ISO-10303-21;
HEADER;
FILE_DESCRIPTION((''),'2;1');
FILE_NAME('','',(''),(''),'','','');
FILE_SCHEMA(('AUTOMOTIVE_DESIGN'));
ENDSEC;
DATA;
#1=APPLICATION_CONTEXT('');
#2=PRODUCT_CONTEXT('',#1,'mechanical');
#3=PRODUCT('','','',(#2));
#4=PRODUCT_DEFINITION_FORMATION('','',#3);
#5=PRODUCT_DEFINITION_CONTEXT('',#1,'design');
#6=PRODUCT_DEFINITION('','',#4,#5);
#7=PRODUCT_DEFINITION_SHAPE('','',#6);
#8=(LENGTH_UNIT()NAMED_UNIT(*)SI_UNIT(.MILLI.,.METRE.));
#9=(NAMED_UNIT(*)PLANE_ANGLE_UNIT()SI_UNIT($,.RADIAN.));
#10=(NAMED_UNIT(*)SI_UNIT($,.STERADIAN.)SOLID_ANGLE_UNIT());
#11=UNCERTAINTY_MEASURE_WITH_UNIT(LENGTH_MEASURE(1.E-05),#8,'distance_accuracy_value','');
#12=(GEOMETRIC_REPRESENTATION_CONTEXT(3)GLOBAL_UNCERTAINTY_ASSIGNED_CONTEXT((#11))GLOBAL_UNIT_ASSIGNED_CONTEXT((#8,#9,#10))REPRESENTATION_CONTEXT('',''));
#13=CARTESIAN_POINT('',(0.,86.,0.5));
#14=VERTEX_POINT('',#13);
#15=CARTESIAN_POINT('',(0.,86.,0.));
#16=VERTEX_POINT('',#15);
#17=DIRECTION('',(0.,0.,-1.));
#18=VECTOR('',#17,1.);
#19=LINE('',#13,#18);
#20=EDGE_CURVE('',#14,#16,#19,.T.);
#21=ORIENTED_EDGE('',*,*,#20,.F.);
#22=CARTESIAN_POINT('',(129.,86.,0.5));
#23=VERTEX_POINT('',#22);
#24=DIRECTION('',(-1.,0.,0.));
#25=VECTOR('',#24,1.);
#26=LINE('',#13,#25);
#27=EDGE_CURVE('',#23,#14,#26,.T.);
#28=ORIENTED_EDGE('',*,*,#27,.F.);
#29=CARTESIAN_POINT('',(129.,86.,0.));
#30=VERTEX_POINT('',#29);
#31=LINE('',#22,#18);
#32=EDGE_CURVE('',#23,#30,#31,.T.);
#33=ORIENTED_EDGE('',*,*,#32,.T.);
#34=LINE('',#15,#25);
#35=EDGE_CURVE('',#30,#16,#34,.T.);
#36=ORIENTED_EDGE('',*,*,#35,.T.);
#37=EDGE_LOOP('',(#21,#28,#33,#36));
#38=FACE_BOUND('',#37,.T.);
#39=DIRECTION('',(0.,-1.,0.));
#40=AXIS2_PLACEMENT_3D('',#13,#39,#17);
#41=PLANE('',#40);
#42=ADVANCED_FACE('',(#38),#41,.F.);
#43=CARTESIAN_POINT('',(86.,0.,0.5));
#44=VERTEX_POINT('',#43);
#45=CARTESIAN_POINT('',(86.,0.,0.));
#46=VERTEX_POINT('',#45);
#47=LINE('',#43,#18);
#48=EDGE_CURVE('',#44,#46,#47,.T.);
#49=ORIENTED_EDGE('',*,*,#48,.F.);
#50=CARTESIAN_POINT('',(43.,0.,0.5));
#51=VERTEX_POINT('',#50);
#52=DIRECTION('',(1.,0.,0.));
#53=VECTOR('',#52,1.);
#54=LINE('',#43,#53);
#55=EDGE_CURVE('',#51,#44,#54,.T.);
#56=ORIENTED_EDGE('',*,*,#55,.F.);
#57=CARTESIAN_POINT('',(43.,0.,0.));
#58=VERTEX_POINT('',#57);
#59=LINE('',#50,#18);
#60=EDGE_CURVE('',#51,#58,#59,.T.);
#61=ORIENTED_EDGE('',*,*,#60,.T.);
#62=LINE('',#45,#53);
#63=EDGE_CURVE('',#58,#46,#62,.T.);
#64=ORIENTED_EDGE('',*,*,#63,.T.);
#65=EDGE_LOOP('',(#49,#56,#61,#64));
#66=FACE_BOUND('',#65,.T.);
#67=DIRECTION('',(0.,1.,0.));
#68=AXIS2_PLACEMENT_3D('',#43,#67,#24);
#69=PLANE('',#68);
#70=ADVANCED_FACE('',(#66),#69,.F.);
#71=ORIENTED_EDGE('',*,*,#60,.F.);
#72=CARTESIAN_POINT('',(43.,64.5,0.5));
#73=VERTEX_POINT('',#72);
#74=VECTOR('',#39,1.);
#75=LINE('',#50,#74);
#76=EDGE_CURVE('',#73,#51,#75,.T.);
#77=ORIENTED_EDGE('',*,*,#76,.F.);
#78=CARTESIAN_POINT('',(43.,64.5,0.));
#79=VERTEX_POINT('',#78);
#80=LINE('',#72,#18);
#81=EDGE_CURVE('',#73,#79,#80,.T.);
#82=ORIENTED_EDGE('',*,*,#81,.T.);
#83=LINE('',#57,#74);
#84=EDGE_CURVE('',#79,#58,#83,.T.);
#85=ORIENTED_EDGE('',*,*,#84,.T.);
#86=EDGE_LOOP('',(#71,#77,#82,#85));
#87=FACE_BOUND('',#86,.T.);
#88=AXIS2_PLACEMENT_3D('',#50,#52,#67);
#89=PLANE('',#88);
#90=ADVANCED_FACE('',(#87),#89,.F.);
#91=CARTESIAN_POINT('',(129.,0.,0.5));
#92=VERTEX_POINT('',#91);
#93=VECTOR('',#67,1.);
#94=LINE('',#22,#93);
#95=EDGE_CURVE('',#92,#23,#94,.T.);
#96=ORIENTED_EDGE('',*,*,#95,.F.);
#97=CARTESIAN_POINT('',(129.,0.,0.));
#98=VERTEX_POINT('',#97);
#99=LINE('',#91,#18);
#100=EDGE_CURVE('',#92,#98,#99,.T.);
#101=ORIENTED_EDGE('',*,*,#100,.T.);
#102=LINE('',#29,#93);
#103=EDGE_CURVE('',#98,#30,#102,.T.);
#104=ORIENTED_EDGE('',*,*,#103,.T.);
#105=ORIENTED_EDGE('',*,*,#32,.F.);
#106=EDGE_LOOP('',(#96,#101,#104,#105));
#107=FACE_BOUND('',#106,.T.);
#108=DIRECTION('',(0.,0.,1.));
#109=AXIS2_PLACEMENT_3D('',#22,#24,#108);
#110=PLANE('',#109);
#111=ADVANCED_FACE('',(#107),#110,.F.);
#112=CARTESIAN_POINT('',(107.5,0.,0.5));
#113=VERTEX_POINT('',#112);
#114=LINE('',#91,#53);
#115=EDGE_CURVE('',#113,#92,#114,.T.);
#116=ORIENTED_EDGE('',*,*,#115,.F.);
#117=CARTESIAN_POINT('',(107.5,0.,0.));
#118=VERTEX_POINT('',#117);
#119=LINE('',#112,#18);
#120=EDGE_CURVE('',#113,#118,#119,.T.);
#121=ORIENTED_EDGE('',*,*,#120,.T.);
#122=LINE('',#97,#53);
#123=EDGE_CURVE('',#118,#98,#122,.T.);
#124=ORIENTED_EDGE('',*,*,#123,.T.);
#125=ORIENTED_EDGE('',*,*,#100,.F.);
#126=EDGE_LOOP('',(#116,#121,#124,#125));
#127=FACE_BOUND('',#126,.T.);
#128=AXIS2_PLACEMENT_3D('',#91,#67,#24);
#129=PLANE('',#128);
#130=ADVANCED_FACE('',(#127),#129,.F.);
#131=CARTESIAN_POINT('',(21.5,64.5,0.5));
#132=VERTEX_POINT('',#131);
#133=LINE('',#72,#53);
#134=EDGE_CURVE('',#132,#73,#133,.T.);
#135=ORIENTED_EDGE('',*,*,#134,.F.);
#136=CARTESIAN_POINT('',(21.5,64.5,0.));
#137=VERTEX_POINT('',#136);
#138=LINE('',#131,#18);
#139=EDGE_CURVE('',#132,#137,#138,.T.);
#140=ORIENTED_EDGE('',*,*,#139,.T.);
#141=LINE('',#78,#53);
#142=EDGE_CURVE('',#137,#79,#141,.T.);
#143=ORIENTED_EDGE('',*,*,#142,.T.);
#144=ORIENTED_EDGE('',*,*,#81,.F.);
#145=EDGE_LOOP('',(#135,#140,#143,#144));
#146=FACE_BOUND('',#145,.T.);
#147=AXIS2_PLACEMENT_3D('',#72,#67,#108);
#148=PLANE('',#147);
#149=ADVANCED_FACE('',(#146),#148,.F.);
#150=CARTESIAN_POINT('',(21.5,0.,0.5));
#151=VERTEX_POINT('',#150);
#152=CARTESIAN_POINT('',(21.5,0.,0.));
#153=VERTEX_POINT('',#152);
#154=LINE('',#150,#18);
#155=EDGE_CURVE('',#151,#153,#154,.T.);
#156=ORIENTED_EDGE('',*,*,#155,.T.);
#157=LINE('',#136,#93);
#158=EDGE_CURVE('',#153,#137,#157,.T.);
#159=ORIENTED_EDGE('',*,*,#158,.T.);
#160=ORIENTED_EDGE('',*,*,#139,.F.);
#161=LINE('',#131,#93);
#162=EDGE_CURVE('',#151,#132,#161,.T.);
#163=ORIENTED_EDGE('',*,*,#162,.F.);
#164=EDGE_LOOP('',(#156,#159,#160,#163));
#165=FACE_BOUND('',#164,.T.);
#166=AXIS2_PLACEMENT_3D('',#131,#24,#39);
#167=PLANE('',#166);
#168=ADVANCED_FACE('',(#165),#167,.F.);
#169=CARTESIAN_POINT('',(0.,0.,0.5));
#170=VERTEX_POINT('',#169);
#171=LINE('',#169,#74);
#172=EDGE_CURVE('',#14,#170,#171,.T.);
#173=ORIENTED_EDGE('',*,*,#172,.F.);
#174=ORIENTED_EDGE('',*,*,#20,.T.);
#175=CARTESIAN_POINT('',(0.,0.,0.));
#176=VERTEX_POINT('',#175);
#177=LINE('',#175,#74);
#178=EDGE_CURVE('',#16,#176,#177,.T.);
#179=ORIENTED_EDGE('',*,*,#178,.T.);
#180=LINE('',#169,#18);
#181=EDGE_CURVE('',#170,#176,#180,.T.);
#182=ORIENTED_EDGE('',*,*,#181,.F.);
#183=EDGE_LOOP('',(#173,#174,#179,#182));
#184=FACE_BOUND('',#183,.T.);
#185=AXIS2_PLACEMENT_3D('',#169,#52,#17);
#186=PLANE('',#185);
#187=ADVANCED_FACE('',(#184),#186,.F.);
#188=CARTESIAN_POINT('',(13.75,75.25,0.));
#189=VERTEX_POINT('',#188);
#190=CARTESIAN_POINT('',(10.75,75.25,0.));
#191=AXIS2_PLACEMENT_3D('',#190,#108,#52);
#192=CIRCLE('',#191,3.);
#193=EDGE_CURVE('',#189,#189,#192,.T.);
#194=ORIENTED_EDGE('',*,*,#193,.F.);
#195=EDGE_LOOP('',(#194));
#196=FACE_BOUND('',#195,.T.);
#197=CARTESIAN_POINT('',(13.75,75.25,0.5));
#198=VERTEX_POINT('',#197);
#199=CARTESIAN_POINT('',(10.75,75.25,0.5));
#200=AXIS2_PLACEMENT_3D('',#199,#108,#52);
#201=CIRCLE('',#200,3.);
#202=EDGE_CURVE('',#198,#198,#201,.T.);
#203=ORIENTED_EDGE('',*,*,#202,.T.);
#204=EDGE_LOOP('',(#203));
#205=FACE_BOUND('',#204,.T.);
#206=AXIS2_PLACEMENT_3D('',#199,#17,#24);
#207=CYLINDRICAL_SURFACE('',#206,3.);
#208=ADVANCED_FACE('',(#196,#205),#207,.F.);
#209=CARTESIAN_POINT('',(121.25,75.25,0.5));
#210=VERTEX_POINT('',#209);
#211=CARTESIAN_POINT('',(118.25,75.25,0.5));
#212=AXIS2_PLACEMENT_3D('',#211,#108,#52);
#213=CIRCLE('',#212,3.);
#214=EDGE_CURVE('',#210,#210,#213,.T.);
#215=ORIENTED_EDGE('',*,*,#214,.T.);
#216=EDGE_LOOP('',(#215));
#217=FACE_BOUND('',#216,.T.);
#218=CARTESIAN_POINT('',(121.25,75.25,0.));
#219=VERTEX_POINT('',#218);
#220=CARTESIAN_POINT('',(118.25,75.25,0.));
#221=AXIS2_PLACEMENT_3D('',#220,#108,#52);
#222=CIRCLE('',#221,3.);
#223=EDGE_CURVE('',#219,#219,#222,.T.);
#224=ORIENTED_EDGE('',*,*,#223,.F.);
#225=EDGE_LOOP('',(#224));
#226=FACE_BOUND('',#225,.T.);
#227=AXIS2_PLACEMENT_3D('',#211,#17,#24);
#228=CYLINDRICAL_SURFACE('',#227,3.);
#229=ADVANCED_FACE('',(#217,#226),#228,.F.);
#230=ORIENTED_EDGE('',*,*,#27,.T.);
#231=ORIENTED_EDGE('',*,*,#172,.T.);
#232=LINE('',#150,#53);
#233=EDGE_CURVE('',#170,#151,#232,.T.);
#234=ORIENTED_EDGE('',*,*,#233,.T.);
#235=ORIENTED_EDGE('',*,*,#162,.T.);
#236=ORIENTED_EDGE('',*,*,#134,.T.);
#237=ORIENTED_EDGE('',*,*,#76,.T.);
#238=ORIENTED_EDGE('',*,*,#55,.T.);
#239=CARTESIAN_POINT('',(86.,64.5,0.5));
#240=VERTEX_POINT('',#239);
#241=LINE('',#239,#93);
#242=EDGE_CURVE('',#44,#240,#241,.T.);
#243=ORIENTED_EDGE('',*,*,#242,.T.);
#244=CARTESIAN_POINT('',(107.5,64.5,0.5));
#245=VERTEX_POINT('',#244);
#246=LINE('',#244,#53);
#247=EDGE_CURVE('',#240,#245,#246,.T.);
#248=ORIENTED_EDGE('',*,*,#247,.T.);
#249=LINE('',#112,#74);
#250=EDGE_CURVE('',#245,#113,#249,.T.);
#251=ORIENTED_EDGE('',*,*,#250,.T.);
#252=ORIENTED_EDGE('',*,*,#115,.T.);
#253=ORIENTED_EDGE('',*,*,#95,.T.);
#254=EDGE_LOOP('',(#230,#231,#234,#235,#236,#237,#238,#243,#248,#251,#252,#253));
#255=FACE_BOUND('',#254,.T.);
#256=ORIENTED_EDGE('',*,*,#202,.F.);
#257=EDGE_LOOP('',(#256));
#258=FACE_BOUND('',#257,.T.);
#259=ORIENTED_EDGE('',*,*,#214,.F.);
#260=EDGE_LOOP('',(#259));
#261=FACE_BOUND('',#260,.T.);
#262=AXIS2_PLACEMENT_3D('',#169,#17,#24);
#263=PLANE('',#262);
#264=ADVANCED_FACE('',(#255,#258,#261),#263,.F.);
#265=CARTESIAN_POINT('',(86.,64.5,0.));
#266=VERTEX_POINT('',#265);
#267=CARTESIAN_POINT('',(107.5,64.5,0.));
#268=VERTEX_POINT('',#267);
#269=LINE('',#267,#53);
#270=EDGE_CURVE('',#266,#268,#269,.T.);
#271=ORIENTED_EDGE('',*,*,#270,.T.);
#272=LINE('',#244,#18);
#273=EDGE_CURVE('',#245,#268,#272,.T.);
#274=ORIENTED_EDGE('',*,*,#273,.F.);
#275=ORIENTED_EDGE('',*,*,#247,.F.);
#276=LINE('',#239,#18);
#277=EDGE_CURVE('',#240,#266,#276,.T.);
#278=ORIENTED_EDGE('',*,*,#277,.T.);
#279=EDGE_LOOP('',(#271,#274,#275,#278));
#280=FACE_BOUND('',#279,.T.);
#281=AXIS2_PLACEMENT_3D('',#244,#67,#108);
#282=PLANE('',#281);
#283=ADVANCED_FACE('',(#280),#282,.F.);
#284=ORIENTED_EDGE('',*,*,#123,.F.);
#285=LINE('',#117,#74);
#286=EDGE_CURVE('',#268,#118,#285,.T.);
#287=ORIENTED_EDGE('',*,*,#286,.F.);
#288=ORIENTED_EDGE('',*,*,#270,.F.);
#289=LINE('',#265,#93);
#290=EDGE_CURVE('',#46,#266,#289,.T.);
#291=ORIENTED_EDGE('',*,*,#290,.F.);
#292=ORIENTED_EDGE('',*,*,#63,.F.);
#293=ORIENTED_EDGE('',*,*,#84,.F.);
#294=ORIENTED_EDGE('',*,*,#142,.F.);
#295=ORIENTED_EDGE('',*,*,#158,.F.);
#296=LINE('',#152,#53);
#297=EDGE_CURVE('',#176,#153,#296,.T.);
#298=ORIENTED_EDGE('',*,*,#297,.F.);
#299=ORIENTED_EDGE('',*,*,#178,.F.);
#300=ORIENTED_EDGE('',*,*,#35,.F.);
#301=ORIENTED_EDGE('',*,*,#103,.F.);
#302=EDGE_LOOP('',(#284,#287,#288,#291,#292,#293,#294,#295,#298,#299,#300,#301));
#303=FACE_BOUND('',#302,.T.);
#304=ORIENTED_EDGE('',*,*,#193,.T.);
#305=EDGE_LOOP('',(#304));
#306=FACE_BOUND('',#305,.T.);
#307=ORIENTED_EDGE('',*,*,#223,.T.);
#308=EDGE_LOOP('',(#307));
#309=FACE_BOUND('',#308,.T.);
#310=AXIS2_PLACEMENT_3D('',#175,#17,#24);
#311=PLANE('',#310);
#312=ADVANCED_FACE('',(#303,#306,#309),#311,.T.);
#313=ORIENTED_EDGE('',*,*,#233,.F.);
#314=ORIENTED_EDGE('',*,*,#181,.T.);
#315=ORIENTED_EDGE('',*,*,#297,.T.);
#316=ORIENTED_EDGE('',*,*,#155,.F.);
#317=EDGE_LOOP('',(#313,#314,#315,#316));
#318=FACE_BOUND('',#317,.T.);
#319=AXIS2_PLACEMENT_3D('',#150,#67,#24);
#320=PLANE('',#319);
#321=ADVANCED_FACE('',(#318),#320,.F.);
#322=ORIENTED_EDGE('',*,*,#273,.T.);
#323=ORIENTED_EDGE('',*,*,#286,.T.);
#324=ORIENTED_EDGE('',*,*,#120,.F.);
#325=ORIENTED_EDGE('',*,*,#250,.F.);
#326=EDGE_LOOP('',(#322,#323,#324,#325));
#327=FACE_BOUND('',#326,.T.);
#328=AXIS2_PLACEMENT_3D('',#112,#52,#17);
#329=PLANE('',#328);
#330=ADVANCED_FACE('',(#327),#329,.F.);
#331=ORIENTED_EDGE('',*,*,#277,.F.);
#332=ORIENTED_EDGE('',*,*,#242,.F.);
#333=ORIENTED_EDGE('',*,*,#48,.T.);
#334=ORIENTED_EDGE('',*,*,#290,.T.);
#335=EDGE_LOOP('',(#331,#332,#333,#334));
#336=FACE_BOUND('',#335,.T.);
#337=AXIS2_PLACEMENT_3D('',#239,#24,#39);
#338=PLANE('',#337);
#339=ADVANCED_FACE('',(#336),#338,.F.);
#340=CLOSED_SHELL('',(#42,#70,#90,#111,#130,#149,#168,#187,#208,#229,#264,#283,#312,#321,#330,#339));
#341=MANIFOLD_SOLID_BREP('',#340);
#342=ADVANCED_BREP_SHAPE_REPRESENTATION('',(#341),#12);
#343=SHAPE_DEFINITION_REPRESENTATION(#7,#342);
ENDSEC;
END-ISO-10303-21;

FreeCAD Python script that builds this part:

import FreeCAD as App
import Part
import Sketcher

V = App.Vector

doc = App.newDocument("Part")
params = doc.addObject("Spreadsheet::Sheet", "Params")
for row, (alias, value) in enumerate([
    ("sketch1_diameter", "6 mm"),
    ("sketch1_width", "43 mm"),
    ("sketch1_width2", "129 mm"),
    ("sketch1_height", "86 mm"),
    ("sketch1_height2", "64.5 mm"),
    ("pad1_length", "0.5 mm"),
], start=1):
    params.set(f"A{row}", alias)
    params.set(f"B{row}", "=" + value)
    params.setAlias(f"B{row}", alias)

body = doc.addObject("PartDesign::Body", "Body")

# Sketch on XY plane
sketch1 = body.newObject("Sketcher::SketchObject", "Sketch")
sketch1.AttachmentSupport = (doc.getObject("XY_Plane"), [""])
sketch1.MapMode = "FlatFace"
sketch1.addGeometry([
    Part.LineSegment(V(0, 86, 0), V(0, 0, 0)),  # 0
    Part.LineSegment(V(0, 0, 0), V(21.5, 0, 0)),  # 1
    Part.LineSegment(V(21.5, 0, 0), V(21.5, 64.5, 0)),  # 2
    Part.LineSegment(V(21.5, 64.5, 0), V(43, 64.5, 0)),  # 3
    Part.LineSegment(V(43, 64.5, 0), V(43, 0, 0)),  # 4
    Part.LineSegment(V(43, 0, 0), V(86, 0, 0)),  # 5
    Part.LineSegment(V(86, 0, 0), V(86, 64.5, 0)),  # 6
    Part.LineSegment(V(86, 64.5, 0), V(107.5, 64.5, 0)),  # 7
    Part.LineSegment(V(107.5, 64.5, 0), V(107.5, 0, 0)),  # 8
    Part.LineSegment(V(107.5, 0, 0), V(129, 0, 0)),  # 9
    Part.LineSegment(V(129, 0, 0), V(129, 86, 0)),  # 10
    Part.LineSegment(V(129, 86, 0), V(0, 86, 0)),  # 11
    Part.Circle(V(118.2, 75.2, 0), V(0, 0, 1), 3),  # 12
    Part.Circle(V(10.8, 75.2, 0), V(0, 0, 1), 3),  # 13
], False)
sketch1.addConstraint([
    Sketcher.Constraint("Coincident", 0, 2, 1, 1),
    Sketcher.Constraint("Coincident", 1, 2, 2, 1),
    Sketcher.Constraint("Coincident", 2, 2, 3, 1),
    Sketcher.Constraint("Coincident", 3, 2, 4, 1),
    Sketcher.Constraint("Coincident", 4, 2, 5, 1),
    Sketcher.Constraint("Coincident", 5, 2, 6, 1),
    Sketcher.Constraint("Coincident", 6, 2, 7, 1),
    Sketcher.Constraint("Coincident", 7, 2, 8, 1),
    Sketcher.Constraint("Coincident", 8, 2, 9, 1),
    Sketcher.Constraint("Coincident", 9, 2, 10, 1),
    Sketcher.Constraint("Coincident", 10, 2, 11, 1),
    Sketcher.Constraint("Coincident", 11, 2, 0, 1),
    Sketcher.Constraint("Vertical", 0),
    Sketcher.Constraint("Horizontal", 1),
    Sketcher.Constraint("Vertical", 2),
    Sketcher.Constraint("Horizontal", 3),
    Sketcher.Constraint("Vertical", 4),
    Sketcher.Constraint("Horizontal", 5),
    Sketcher.Constraint("Vertical", 6),
    Sketcher.Constraint("Horizontal", 7),
    Sketcher.Constraint("Vertical", 8),
    Sketcher.Constraint("Horizontal", 9),
    Sketcher.Constraint("Vertical", 10),
    Sketcher.Constraint("Horizontal", 11),
    Sketcher.Constraint("Coincident", 0, 2, -1, 1),
    Sketcher.Constraint("Equal", 12, 13),
    Sketcher.Constraint("PointOnObject", 4, 2, -1),
    Sketcher.Constraint("PointOnObject", 8, 2, -1),
    Sketcher.Constraint("Horizontal", 12, 3, 13, 3),
    Sketcher.Constraint("Horizontal", 3, 2, 6, 2),
    Sketcher.Constraint("Equal", 1, 3),
    Sketcher.Constraint("Equal", 3, 7),
    Sketcher.Constraint("Equal", 7, 9),
    Sketcher.Constraint("Diameter", 12, 6.0),
    Sketcher.Constraint("DistanceX", 5, 1, 5, 2, 43.0),
    Sketcher.Constraint("DistanceX", 11, 2, 11, 1, 129.0),
    Sketcher.Constraint("DistanceY", 0, 2, 0, 1, 86.0),
    Sketcher.Constraint("DistanceY", 2, 1, 2, 2, 64.5),
    Sketcher.Constraint("DistanceX", 13, 3, 12, 3, 107.5),
    Sketcher.Constraint("DistanceX", -1, 1, 12, 3, 118.25),
    Sketcher.Constraint("DistanceY", -1, 1, 12, 3, 75.25),
])
sketch1.setExpression("Constraints[33]", "Params.sketch1_diameter")
sketch1.setExpression("Constraints[34]", "Params.sketch1_width")
sketch1.setExpression("Constraints[35]", "Params.sketch1_width2")
sketch1.setExpression("Constraints[36]", "Params.sketch1_height")
sketch1.setExpression("Constraints[37]", "Params.sketch1_height2")
pad1 = body.newObject("PartDesign::Pad", "Pad")
pad1.Profile = sketch1
pad1.setExpression("Length", "Params.pad1_length")

doc.recompute()
